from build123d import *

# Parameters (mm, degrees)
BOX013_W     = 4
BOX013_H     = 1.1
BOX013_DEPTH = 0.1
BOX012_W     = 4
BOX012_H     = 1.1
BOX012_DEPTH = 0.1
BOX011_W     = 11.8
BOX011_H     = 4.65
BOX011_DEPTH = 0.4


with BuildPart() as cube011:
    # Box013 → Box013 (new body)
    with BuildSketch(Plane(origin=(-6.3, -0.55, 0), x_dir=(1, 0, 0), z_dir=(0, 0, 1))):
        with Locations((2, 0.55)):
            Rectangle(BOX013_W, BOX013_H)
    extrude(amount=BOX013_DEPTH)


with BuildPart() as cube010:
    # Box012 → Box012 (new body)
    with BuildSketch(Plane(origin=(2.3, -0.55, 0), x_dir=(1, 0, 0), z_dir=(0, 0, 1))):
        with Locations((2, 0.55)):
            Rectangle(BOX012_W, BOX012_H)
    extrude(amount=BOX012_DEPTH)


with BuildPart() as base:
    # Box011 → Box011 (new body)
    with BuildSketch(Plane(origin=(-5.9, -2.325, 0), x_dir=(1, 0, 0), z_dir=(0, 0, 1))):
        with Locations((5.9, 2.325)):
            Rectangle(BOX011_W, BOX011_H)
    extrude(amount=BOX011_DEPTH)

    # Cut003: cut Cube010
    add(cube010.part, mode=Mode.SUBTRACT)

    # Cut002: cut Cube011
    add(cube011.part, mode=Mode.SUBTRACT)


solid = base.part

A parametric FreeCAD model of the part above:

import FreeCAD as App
import Part
import Sketcher

V = App.Vector


def add_polygon(sketch, points):
    """Adds a closed chain of lines whose ends are joined by coincident constraints."""
    first, n = sketch.GeometryCount, len(points)
    for a, b in zip(points, points[1:] + points[:1]):
        sketch.addGeometry(Part.LineSegment(App.Vector(*a, 0), App.Vector(*b, 0)), False)
    for i in range(n):
        sketch.addConstraint(Sketcher.Constraint("Coincident", first + i, 2, first + (i + 1) % n, 1))

doc = App.newDocument("Part")
params = doc.addObject("Spreadsheet::Sheet", "Params")
for row, (alias, value) in enumerate([
    ("sketch1_width", "4 mm"),
    ("sketch1_height", "1.1 mm"),
    ("pad1_length", "0.1 mm"),
    ("sketch2_width", "4 mm"),
    ("sketch2_height", "1.1 mm"),
    ("pad2_length", "0.1 mm"),
    ("sketch3_width", "11.8 mm"),
    ("sketch3_height", "4.65 mm"),
    ("pad3_length", "0.4 mm"),
], start=1):
    params.set(f"A{row}", alias)
    params.set(f"B{row}", "=" + value)
    params.setAlias(f"B{row}", alias)

body = doc.addObject("PartDesign::Body", "Body")

# Sketch on XY plane
sketch1 = body.newObject("Sketcher::SketchObject", "Sketch")
sketch1.AttachmentSupport = (doc.getObject("XY_Plane"), [""])
sketch1.MapMode = "FlatFace"
add_polygon(sketch1, [(-6.3, 0.55), (-6.3, -0.55), (-2.3, -0.55), (-2.3, 0.55)])  # lines 0-3
sketch1.addConstraint([
    Sketcher.Constraint("Vertical", 0),
    Sketcher.Constraint("Horizontal", 1),
    Sketcher.Constraint("Vertical", 2),
    Sketcher.Constraint("Horizontal", 3),
    Sketcher.Constraint("DistanceX", 1, 1, 1, 2, 4.0),
    Sketcher.Constraint("DistanceY", 0, 2, 0, 1, 1.1),
    Sketcher.Constraint("DistanceX", 0, 2, -1, 1, 6.3),
    Sketcher.Constraint("DistanceY", 0, 2, -1, 1, 0.55),
])
sketch1.setExpression("Constraints[8]", "Params.sketch1_width")
sketch1.setExpression("Constraints[9]", "Params.sketch1_height")
pad1 = body.newObject("PartDesign::Pad", "Pad")
pad1.Profile = sketch1
pad1.setExpression("Length", "Params.pad1_length")
body2 = doc.addObject("PartDesign::Body", "Body001")

# Sketch on XY plane
sketch2 = body2.newObject("Sketcher::SketchObject", "Sketch001")
sketch2.AttachmentSupport = (doc.getObject("XY_Plane001"), [""])
sketch2.MapMode = "FlatFace"
add_polygon(sketch2, [(2.3, 0.55), (2.3, -0.55), (6.3, -0.55), (6.3, 0.55)])  # lines 0-3
sketch2.addConstraint([
    Sketcher.Constraint("Vertical", 0),
    Sketcher.Constraint("Horizontal", 1),
    Sketcher.Constraint("Vertical", 2),
    Sketcher.Constraint("Horizontal", 3),
    Sketcher.Constraint("DistanceX", 1, 1, 1, 2, 4.0),
    Sketcher.Constraint("DistanceY", 0, 2, 0, 1, 1.1),
    Sketcher.Constraint("DistanceX", -1, 1, 0, 2, 2.3),
    Sketcher.Constraint("DistanceY", 0, 2, -1, 1, 0.55),
])
sketch2.setExpression("Constraints[8]", "Params.sketch2_width")
sketch2.setExpression("Constraints[9]", "Params.sketch2_height")
pad2 = body2.newObject("PartDesign::Pad", "Pad001")
pad2.Profile = sketch2
pad2.setExpression("Length", "Params.pad2_length")
body3 = doc.addObject("PartDesign::Body", "Body002")

# Sketch on XY plane
sketch3 = body3.newObject("Sketcher::SketchObject", "Sketch002")
sketch3.AttachmentSupport = (doc.getObject("XY_Plane002"), [""])
sketch3.MapMode = "FlatFace"
add_polygon(sketch3, [(-5.9, 2.325), (-5.9, -2.325), (5.9, -2.325), (5.9, 2.325)])  # lines 0-3
sketch3.addConstraint([
    Sketcher.Constraint("Vertical", 0),
    Sketcher.Constraint("Horizontal", 1),
    Sketcher.Constraint("Vertical", 2),
    Sketcher.Constraint("Horizontal", 3),
    Sketcher.Constraint("Symmetric", 0, 2, 2, 2, -1, 1),
    Sketcher.Constraint("DistanceX", 1, 1, 1, 2, 11.8),
    Sketcher.Constraint("DistanceY", 0, 2, 0, 1, 4.65),
])
sketch3.setExpression("Constraints[9]", "Params.sketch3_width")
sketch3.setExpression("Constraints[10]", "Params.sketch3_height")
pad3 = body3.newObject("PartDesign::Pad", "Pad002")
pad3.Profile = sketch3
pad3.setExpression("Length", "Params.pad3_length")
doc.recompute()

boolean = body3.newObject("PartDesign::Boolean", "Boolean")
boolean.Type = "Cut"
boolean.addObjects([body2])
doc.recompute()

boolean2 = body3.newObject("PartDesign::Boolean", "Boolean001")
boolean2.Type = "Cut"
boolean2.addObjects([body])

doc.recompute()
